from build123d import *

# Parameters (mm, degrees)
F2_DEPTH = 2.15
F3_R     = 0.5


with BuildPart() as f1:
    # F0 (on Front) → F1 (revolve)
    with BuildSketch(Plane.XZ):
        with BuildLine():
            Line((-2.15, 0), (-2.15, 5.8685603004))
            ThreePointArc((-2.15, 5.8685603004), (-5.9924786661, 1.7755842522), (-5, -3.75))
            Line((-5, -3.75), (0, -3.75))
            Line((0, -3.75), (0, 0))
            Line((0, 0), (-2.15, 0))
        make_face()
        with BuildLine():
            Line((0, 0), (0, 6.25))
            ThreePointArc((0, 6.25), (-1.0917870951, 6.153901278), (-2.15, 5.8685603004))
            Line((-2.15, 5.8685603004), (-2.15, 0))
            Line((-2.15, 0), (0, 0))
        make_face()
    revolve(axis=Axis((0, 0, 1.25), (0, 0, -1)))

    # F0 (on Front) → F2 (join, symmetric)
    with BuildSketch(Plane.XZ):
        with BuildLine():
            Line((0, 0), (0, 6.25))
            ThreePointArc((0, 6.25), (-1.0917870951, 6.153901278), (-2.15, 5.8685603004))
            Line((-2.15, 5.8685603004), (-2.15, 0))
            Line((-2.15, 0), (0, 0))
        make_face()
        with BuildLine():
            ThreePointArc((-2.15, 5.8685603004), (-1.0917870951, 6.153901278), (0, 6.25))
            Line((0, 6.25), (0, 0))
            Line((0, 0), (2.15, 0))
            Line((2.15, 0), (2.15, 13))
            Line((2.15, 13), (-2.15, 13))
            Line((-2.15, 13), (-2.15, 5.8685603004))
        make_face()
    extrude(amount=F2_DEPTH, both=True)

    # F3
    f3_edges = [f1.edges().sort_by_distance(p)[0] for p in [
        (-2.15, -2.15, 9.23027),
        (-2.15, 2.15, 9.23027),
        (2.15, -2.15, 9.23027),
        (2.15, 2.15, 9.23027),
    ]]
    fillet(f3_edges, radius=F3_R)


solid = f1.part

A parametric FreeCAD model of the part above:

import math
import FreeCAD as App
import Part
import Sketcher
from FreeCAD import Vector
Q = App.Units.Quantity


def edges_at(feature, points):
    """Names of the edges that pass closest to the given points."""
    edges = feature.Shape.Edges
    near = lambda p: min(range(len(edges)), key=lambda i: edges[i].distToShape(Part.Vertex(*p))[0])
    return sorted({f"Edge{near(p) + 1}" for p in points})

doc = App.newDocument("Part")
body = doc.addObject("PartDesign::Body", "Body")

# Sketch on XZ plane
sketch1 = doc.addObject("Sketcher::SketchObject", "Sketch")
body.addObject(sketch1)
sketch1.AttachmentSupport = (doc.XZ_Plane, [""])
sketch1.MapMode = "FlatFace"
sketch1.addGeometry(Part.ArcOfCircle(Part.Circle(Vector(0, 0, 0), Vector(0, 0, 1), 6.2), math.radians(110), math.radians(217)), False)
sketch1.addGeometry(Part.LineSegment(Vector(-5, -3.8, 0), Vector(0, -3.8, 0)), False)
sketch1.addGeometry(Part.LineSegment(Vector(0, -3.8, 0), Vector(0, 6.2, 0)), False)
sketch1.addGeometry(Part.ArcOfCircle(Part.Circle(Vector(0, 0, 0), Vector(0, 0, 1), 6.2), math.radians(90), math.radians(110)), False)
sketch1.addConstraint(Sketcher.Constraint("Coincident", 0, 2, 1, 1))
sketch1.addConstraint(Sketcher.Constraint("Coincident", 1, 2, 2, 1))
sketch1.addConstraint(Sketcher.Constraint("Coincident", 2, 2, 3, 1))
sketch1.addConstraint(Sketcher.Constraint("Tangent", 3, 2, 0, 1))
sketch1.addConstraint(Sketcher.Constraint("Horizontal", 1))
sketch1.addConstraint(Sketcher.Constraint("Vertical", 2))
sketch1.addConstraint(Sketcher.Constraint("Coincident", 0, 3, -1, 1))
sketch1.addConstraint(Sketcher.Constraint("Equal", 0, 3))
sketch1.addConstraint(Sketcher.Constraint("PointOnObject", 1, 2, -2))
sketch1.addConstraint(Sketcher.Constraint("DistanceX", 1, 1, 1, 2, Q("5 mm")))
sketch1.addConstraint(Sketcher.Constraint("DistanceY", 2, 1, 2, 2, Q("10 mm")))
sketch1.addConstraint(Sketcher.Constraint("DistanceX", 3, 2, -1, 1, Q("2.15 mm")))
revolution = doc.addObject("PartDesign::Revolution", "Revolution")
body.addObject(revolution)
revolution.Profile = sketch1
revolution.ReferenceAxis = (sketch1, ["V_Axis"])
revolution.Angle = 360

# Sketch on XZ plane
sketch2 = doc.addObject("Sketcher::SketchObject", "Sketch001")
body.addObject(sketch2)
sketch2.AttachmentSupport = (doc.XZ_Plane, [""])
sketch2.MapMode = "FlatFace"
sketch2.addGeometry(Part.LineSegment(Vector(-2.1, 0, 0), Vector(2.1, 0, 0)), False)
sketch2.addGeometry(Part.LineSegment(Vector(2.1, 0, 0), Vector(2.1, 13, 0)), False)
sketch2.addGeometry(Part.LineSegment(Vector(2.1, 13, 0), Vector(-2.1, 13, 0)), False)
sketch2.addGeometry(Part.LineSegment(Vector(-2.1, 13, 0), Vector(-2.1, 0, 0)), False)
sketch2.addConstraint(Sketcher.Constraint("Coincident", 0, 2, 1, 1))
sketch2.addConstraint(Sketcher.Constraint("Coincident", 1, 2, 2, 1))
sketch2.addConstraint(Sketcher.Constraint("Coincident", 2, 2, 3, 1))
sketch2.addConstraint(Sketcher.Constraint("Coincident", 3, 2, 0, 1))
sketch2.addConstraint(Sketcher.Constraint("Horizontal", 0))
sketch2.addConstraint(Sketcher.Constraint("Vertical", 1))
sketch2.addConstraint(Sketcher.Constraint("Horizontal", 2))
sketch2.addConstraint(Sketcher.Constraint("Vertical", 3))
sketch2.addConstraint(Sketcher.Constraint("Symmetric", 0, 2, 3, 2, -1, 1))
sketch2.addConstraint(Sketcher.Constraint("DistanceY", 1, 1, 1, 2, Q("13 mm")))
sketch2.addConstraint(Sketcher.Constraint("DistanceX", 0, 1, 0, 2, Q("4.3 mm")))
pad1 = doc.addObject("PartDesign::Pad", "Pad")
body.addObject(pad1)
pad1.Profile = sketch2
pad1.Length = 4.3
pad1.Midplane = True
doc.recompute()

fillet = doc.addObject("PartDesign::Fillet", "Fillet")
body.addObject(fillet)
fillet.Base = (pad1, edges_at(pad1, [
    (-2.15, -2.15, 9.23),
    (-2.15, 2.15, 9.23),
    (2.15, -2.15, 9.23),
    (2.15, 2.15, 9.23),
]))
fillet.Radius = 0.5

doc.recompute()
